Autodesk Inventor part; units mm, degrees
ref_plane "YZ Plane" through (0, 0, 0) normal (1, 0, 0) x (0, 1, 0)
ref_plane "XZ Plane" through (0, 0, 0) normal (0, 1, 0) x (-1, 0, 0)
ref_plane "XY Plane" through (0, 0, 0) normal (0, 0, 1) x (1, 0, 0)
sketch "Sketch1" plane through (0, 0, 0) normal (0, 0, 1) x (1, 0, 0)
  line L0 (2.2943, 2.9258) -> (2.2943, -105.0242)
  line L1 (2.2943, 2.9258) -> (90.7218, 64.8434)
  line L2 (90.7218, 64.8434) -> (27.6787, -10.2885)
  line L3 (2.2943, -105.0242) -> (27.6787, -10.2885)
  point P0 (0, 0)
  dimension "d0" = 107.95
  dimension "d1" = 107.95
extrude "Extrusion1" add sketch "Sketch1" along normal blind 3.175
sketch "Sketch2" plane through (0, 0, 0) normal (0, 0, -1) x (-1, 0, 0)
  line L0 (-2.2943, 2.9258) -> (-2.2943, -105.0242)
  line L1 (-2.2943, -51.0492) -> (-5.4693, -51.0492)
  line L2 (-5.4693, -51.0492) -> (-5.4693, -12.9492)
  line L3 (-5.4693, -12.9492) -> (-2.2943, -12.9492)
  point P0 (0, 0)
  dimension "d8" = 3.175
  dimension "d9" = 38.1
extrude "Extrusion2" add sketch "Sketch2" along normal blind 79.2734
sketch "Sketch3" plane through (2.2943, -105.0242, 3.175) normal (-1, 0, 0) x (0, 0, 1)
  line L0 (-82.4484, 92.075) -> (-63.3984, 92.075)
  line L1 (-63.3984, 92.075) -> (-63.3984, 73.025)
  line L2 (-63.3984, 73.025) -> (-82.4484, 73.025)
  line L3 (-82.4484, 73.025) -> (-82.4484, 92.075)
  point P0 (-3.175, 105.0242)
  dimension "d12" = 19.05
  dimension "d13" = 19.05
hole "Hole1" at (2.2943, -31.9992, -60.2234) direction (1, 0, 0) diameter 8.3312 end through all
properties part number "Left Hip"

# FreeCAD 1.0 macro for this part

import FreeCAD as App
import Part
import Sketcher

V = App.Vector
Q = App.Units.Quantity


def add_polygon(sketch, points):
    """Adds a closed chain of lines whose ends are joined by coincident constraints."""
    first, n = sketch.GeometryCount, len(points)
    for a, b in zip(points, points[1:] + points[:1]):
        sketch.addGeometry(Part.LineSegment(App.Vector(*a, 0), App.Vector(*b, 0)), False)
    for i in range(n):
        sketch.addConstraint(Sketcher.Constraint("Coincident", first + i, 2, first + (i + 1) % n, 1))

doc = App.newDocument("Part")
body = doc.addObject("PartDesign::Body", "Body")

# Sketch on XY plane
sketch1 = doc.addObject("Sketcher::SketchObject", "Sketch")
body.addObject(sketch1)
sketch1.AttachmentSupport = (doc.XY_Plane, [""])
sketch1.MapMode = "FlatFace"
add_polygon(sketch1, [(91, 65), (2, 3), (2, -105), (28, -10)])  # lines 0-3
sketch1.addConstraint(Sketcher.Constraint("Vertical", 1))
sketch1.addConstraint(Sketcher.Constraint("Equal", 2, 3))
sketch1.addConstraint(Sketcher.Constraint("DistanceY", 1, 2, 1, 1, Q("4.25 in")))
sketch1.addConstraint(Sketcher.Constraint("Distance", 0, Q("4.25 in")))
sketch1.addConstraint(Sketcher.Constraint("Angle", 0, Q("-145 deg")))
sketch1.addConstraint(Sketcher.Constraint("Angle", 2, Q("75 deg")))
sketch1.addConstraint(Sketcher.Constraint("DistanceY", -1, 1, 0, 2, Q("0.1152 in")))
sketch1.addConstraint(Sketcher.Constraint("DistanceX", -1, 1, 0, 2, 2.2943))
pad1 = doc.addObject("PartDesign::Pad", "Pad")
body.addObject(pad1)
pad1.Profile = sketch1
pad1.Length = Q("0.125 in")

# Sketch on XY plane
sketch2 = doc.addObject("Sketcher::SketchObject", "Sketch001")
body.addObject(sketch2)
sketch2.AttachmentSupport = (doc.XY_Plane, [""])
sketch2.MapMode = "FlatFace"
add_polygon(sketch2, [(2.3, -51), (2.3, -12.9), (5.5, -12.9), (5.5, -51)])  # lines 0-3
sketch2.addConstraint(Sketcher.Constraint("Vertical", 0))
sketch2.addConstraint(Sketcher.Constraint("Horizontal", 1))
sketch2.addConstraint(Sketcher.Constraint("Vertical", 2))
sketch2.addConstraint(Sketcher.Constraint("Horizontal", 3))
sketch2.addConstraint(Sketcher.Constraint("DistanceY", 0, 1, 0, 2, Q("1.5 in")))
sketch2.addConstraint(Sketcher.Constraint("DistanceX", 1, 1, 1, 2, Q("0.125 in")))
sketch2.addConstraint(Sketcher.Constraint("DistanceY", 0, 2, -1, 1, Q("0.5098 in")))
sketch2.addConstraint(Sketcher.Constraint("DistanceX", -1, 1, 0, 2, 2.2943))
pad2 = doc.addObject("PartDesign::Pad", "Pad001")
body.addObject(pad2)
pad2.Profile = sketch2
pad2.Length = Q("3.121 in")
pad2.Reversed = True

# Sketch on YZ plane
sketch3 = doc.addObject("Sketcher::SketchObject", "Sketch002")
body.addObject(sketch3)
sketch3.AttachmentSupport = (doc.YZ_Plane, [""])
sketch3.MapMode = "FlatFace"
sketch3.AttachmentOffset = App.Placement(V(0, 0, 2.2943), App.Rotation())
sketch3.addGeometry(Part.Circle(V(-32, -60.2, 0), V(0, 0, 1), 4.2), False)
sketch3.addConstraint(Sketcher.Constraint("Diameter", 0, Q("0.328 in")))
sketch3.addConstraint(Sketcher.Constraint("DistanceY", 0, 3, -1, 1, Q("2.371 in")))
sketch3.addConstraint(Sketcher.Constraint("DistanceX", 0, 3, -1, 1, Q("1.2598 in")))
doc.recompute()
hole = doc.addObject("PartDesign::Hole", "Hole")
body.addObject(hole)
hole.Profile = sketch3
hole.ThreadType = "None"
hole.Diameter = Q("0.328 in")
hole.DepthType = "ThroughAll"
hole.Reversed = True

doc.recompute()
